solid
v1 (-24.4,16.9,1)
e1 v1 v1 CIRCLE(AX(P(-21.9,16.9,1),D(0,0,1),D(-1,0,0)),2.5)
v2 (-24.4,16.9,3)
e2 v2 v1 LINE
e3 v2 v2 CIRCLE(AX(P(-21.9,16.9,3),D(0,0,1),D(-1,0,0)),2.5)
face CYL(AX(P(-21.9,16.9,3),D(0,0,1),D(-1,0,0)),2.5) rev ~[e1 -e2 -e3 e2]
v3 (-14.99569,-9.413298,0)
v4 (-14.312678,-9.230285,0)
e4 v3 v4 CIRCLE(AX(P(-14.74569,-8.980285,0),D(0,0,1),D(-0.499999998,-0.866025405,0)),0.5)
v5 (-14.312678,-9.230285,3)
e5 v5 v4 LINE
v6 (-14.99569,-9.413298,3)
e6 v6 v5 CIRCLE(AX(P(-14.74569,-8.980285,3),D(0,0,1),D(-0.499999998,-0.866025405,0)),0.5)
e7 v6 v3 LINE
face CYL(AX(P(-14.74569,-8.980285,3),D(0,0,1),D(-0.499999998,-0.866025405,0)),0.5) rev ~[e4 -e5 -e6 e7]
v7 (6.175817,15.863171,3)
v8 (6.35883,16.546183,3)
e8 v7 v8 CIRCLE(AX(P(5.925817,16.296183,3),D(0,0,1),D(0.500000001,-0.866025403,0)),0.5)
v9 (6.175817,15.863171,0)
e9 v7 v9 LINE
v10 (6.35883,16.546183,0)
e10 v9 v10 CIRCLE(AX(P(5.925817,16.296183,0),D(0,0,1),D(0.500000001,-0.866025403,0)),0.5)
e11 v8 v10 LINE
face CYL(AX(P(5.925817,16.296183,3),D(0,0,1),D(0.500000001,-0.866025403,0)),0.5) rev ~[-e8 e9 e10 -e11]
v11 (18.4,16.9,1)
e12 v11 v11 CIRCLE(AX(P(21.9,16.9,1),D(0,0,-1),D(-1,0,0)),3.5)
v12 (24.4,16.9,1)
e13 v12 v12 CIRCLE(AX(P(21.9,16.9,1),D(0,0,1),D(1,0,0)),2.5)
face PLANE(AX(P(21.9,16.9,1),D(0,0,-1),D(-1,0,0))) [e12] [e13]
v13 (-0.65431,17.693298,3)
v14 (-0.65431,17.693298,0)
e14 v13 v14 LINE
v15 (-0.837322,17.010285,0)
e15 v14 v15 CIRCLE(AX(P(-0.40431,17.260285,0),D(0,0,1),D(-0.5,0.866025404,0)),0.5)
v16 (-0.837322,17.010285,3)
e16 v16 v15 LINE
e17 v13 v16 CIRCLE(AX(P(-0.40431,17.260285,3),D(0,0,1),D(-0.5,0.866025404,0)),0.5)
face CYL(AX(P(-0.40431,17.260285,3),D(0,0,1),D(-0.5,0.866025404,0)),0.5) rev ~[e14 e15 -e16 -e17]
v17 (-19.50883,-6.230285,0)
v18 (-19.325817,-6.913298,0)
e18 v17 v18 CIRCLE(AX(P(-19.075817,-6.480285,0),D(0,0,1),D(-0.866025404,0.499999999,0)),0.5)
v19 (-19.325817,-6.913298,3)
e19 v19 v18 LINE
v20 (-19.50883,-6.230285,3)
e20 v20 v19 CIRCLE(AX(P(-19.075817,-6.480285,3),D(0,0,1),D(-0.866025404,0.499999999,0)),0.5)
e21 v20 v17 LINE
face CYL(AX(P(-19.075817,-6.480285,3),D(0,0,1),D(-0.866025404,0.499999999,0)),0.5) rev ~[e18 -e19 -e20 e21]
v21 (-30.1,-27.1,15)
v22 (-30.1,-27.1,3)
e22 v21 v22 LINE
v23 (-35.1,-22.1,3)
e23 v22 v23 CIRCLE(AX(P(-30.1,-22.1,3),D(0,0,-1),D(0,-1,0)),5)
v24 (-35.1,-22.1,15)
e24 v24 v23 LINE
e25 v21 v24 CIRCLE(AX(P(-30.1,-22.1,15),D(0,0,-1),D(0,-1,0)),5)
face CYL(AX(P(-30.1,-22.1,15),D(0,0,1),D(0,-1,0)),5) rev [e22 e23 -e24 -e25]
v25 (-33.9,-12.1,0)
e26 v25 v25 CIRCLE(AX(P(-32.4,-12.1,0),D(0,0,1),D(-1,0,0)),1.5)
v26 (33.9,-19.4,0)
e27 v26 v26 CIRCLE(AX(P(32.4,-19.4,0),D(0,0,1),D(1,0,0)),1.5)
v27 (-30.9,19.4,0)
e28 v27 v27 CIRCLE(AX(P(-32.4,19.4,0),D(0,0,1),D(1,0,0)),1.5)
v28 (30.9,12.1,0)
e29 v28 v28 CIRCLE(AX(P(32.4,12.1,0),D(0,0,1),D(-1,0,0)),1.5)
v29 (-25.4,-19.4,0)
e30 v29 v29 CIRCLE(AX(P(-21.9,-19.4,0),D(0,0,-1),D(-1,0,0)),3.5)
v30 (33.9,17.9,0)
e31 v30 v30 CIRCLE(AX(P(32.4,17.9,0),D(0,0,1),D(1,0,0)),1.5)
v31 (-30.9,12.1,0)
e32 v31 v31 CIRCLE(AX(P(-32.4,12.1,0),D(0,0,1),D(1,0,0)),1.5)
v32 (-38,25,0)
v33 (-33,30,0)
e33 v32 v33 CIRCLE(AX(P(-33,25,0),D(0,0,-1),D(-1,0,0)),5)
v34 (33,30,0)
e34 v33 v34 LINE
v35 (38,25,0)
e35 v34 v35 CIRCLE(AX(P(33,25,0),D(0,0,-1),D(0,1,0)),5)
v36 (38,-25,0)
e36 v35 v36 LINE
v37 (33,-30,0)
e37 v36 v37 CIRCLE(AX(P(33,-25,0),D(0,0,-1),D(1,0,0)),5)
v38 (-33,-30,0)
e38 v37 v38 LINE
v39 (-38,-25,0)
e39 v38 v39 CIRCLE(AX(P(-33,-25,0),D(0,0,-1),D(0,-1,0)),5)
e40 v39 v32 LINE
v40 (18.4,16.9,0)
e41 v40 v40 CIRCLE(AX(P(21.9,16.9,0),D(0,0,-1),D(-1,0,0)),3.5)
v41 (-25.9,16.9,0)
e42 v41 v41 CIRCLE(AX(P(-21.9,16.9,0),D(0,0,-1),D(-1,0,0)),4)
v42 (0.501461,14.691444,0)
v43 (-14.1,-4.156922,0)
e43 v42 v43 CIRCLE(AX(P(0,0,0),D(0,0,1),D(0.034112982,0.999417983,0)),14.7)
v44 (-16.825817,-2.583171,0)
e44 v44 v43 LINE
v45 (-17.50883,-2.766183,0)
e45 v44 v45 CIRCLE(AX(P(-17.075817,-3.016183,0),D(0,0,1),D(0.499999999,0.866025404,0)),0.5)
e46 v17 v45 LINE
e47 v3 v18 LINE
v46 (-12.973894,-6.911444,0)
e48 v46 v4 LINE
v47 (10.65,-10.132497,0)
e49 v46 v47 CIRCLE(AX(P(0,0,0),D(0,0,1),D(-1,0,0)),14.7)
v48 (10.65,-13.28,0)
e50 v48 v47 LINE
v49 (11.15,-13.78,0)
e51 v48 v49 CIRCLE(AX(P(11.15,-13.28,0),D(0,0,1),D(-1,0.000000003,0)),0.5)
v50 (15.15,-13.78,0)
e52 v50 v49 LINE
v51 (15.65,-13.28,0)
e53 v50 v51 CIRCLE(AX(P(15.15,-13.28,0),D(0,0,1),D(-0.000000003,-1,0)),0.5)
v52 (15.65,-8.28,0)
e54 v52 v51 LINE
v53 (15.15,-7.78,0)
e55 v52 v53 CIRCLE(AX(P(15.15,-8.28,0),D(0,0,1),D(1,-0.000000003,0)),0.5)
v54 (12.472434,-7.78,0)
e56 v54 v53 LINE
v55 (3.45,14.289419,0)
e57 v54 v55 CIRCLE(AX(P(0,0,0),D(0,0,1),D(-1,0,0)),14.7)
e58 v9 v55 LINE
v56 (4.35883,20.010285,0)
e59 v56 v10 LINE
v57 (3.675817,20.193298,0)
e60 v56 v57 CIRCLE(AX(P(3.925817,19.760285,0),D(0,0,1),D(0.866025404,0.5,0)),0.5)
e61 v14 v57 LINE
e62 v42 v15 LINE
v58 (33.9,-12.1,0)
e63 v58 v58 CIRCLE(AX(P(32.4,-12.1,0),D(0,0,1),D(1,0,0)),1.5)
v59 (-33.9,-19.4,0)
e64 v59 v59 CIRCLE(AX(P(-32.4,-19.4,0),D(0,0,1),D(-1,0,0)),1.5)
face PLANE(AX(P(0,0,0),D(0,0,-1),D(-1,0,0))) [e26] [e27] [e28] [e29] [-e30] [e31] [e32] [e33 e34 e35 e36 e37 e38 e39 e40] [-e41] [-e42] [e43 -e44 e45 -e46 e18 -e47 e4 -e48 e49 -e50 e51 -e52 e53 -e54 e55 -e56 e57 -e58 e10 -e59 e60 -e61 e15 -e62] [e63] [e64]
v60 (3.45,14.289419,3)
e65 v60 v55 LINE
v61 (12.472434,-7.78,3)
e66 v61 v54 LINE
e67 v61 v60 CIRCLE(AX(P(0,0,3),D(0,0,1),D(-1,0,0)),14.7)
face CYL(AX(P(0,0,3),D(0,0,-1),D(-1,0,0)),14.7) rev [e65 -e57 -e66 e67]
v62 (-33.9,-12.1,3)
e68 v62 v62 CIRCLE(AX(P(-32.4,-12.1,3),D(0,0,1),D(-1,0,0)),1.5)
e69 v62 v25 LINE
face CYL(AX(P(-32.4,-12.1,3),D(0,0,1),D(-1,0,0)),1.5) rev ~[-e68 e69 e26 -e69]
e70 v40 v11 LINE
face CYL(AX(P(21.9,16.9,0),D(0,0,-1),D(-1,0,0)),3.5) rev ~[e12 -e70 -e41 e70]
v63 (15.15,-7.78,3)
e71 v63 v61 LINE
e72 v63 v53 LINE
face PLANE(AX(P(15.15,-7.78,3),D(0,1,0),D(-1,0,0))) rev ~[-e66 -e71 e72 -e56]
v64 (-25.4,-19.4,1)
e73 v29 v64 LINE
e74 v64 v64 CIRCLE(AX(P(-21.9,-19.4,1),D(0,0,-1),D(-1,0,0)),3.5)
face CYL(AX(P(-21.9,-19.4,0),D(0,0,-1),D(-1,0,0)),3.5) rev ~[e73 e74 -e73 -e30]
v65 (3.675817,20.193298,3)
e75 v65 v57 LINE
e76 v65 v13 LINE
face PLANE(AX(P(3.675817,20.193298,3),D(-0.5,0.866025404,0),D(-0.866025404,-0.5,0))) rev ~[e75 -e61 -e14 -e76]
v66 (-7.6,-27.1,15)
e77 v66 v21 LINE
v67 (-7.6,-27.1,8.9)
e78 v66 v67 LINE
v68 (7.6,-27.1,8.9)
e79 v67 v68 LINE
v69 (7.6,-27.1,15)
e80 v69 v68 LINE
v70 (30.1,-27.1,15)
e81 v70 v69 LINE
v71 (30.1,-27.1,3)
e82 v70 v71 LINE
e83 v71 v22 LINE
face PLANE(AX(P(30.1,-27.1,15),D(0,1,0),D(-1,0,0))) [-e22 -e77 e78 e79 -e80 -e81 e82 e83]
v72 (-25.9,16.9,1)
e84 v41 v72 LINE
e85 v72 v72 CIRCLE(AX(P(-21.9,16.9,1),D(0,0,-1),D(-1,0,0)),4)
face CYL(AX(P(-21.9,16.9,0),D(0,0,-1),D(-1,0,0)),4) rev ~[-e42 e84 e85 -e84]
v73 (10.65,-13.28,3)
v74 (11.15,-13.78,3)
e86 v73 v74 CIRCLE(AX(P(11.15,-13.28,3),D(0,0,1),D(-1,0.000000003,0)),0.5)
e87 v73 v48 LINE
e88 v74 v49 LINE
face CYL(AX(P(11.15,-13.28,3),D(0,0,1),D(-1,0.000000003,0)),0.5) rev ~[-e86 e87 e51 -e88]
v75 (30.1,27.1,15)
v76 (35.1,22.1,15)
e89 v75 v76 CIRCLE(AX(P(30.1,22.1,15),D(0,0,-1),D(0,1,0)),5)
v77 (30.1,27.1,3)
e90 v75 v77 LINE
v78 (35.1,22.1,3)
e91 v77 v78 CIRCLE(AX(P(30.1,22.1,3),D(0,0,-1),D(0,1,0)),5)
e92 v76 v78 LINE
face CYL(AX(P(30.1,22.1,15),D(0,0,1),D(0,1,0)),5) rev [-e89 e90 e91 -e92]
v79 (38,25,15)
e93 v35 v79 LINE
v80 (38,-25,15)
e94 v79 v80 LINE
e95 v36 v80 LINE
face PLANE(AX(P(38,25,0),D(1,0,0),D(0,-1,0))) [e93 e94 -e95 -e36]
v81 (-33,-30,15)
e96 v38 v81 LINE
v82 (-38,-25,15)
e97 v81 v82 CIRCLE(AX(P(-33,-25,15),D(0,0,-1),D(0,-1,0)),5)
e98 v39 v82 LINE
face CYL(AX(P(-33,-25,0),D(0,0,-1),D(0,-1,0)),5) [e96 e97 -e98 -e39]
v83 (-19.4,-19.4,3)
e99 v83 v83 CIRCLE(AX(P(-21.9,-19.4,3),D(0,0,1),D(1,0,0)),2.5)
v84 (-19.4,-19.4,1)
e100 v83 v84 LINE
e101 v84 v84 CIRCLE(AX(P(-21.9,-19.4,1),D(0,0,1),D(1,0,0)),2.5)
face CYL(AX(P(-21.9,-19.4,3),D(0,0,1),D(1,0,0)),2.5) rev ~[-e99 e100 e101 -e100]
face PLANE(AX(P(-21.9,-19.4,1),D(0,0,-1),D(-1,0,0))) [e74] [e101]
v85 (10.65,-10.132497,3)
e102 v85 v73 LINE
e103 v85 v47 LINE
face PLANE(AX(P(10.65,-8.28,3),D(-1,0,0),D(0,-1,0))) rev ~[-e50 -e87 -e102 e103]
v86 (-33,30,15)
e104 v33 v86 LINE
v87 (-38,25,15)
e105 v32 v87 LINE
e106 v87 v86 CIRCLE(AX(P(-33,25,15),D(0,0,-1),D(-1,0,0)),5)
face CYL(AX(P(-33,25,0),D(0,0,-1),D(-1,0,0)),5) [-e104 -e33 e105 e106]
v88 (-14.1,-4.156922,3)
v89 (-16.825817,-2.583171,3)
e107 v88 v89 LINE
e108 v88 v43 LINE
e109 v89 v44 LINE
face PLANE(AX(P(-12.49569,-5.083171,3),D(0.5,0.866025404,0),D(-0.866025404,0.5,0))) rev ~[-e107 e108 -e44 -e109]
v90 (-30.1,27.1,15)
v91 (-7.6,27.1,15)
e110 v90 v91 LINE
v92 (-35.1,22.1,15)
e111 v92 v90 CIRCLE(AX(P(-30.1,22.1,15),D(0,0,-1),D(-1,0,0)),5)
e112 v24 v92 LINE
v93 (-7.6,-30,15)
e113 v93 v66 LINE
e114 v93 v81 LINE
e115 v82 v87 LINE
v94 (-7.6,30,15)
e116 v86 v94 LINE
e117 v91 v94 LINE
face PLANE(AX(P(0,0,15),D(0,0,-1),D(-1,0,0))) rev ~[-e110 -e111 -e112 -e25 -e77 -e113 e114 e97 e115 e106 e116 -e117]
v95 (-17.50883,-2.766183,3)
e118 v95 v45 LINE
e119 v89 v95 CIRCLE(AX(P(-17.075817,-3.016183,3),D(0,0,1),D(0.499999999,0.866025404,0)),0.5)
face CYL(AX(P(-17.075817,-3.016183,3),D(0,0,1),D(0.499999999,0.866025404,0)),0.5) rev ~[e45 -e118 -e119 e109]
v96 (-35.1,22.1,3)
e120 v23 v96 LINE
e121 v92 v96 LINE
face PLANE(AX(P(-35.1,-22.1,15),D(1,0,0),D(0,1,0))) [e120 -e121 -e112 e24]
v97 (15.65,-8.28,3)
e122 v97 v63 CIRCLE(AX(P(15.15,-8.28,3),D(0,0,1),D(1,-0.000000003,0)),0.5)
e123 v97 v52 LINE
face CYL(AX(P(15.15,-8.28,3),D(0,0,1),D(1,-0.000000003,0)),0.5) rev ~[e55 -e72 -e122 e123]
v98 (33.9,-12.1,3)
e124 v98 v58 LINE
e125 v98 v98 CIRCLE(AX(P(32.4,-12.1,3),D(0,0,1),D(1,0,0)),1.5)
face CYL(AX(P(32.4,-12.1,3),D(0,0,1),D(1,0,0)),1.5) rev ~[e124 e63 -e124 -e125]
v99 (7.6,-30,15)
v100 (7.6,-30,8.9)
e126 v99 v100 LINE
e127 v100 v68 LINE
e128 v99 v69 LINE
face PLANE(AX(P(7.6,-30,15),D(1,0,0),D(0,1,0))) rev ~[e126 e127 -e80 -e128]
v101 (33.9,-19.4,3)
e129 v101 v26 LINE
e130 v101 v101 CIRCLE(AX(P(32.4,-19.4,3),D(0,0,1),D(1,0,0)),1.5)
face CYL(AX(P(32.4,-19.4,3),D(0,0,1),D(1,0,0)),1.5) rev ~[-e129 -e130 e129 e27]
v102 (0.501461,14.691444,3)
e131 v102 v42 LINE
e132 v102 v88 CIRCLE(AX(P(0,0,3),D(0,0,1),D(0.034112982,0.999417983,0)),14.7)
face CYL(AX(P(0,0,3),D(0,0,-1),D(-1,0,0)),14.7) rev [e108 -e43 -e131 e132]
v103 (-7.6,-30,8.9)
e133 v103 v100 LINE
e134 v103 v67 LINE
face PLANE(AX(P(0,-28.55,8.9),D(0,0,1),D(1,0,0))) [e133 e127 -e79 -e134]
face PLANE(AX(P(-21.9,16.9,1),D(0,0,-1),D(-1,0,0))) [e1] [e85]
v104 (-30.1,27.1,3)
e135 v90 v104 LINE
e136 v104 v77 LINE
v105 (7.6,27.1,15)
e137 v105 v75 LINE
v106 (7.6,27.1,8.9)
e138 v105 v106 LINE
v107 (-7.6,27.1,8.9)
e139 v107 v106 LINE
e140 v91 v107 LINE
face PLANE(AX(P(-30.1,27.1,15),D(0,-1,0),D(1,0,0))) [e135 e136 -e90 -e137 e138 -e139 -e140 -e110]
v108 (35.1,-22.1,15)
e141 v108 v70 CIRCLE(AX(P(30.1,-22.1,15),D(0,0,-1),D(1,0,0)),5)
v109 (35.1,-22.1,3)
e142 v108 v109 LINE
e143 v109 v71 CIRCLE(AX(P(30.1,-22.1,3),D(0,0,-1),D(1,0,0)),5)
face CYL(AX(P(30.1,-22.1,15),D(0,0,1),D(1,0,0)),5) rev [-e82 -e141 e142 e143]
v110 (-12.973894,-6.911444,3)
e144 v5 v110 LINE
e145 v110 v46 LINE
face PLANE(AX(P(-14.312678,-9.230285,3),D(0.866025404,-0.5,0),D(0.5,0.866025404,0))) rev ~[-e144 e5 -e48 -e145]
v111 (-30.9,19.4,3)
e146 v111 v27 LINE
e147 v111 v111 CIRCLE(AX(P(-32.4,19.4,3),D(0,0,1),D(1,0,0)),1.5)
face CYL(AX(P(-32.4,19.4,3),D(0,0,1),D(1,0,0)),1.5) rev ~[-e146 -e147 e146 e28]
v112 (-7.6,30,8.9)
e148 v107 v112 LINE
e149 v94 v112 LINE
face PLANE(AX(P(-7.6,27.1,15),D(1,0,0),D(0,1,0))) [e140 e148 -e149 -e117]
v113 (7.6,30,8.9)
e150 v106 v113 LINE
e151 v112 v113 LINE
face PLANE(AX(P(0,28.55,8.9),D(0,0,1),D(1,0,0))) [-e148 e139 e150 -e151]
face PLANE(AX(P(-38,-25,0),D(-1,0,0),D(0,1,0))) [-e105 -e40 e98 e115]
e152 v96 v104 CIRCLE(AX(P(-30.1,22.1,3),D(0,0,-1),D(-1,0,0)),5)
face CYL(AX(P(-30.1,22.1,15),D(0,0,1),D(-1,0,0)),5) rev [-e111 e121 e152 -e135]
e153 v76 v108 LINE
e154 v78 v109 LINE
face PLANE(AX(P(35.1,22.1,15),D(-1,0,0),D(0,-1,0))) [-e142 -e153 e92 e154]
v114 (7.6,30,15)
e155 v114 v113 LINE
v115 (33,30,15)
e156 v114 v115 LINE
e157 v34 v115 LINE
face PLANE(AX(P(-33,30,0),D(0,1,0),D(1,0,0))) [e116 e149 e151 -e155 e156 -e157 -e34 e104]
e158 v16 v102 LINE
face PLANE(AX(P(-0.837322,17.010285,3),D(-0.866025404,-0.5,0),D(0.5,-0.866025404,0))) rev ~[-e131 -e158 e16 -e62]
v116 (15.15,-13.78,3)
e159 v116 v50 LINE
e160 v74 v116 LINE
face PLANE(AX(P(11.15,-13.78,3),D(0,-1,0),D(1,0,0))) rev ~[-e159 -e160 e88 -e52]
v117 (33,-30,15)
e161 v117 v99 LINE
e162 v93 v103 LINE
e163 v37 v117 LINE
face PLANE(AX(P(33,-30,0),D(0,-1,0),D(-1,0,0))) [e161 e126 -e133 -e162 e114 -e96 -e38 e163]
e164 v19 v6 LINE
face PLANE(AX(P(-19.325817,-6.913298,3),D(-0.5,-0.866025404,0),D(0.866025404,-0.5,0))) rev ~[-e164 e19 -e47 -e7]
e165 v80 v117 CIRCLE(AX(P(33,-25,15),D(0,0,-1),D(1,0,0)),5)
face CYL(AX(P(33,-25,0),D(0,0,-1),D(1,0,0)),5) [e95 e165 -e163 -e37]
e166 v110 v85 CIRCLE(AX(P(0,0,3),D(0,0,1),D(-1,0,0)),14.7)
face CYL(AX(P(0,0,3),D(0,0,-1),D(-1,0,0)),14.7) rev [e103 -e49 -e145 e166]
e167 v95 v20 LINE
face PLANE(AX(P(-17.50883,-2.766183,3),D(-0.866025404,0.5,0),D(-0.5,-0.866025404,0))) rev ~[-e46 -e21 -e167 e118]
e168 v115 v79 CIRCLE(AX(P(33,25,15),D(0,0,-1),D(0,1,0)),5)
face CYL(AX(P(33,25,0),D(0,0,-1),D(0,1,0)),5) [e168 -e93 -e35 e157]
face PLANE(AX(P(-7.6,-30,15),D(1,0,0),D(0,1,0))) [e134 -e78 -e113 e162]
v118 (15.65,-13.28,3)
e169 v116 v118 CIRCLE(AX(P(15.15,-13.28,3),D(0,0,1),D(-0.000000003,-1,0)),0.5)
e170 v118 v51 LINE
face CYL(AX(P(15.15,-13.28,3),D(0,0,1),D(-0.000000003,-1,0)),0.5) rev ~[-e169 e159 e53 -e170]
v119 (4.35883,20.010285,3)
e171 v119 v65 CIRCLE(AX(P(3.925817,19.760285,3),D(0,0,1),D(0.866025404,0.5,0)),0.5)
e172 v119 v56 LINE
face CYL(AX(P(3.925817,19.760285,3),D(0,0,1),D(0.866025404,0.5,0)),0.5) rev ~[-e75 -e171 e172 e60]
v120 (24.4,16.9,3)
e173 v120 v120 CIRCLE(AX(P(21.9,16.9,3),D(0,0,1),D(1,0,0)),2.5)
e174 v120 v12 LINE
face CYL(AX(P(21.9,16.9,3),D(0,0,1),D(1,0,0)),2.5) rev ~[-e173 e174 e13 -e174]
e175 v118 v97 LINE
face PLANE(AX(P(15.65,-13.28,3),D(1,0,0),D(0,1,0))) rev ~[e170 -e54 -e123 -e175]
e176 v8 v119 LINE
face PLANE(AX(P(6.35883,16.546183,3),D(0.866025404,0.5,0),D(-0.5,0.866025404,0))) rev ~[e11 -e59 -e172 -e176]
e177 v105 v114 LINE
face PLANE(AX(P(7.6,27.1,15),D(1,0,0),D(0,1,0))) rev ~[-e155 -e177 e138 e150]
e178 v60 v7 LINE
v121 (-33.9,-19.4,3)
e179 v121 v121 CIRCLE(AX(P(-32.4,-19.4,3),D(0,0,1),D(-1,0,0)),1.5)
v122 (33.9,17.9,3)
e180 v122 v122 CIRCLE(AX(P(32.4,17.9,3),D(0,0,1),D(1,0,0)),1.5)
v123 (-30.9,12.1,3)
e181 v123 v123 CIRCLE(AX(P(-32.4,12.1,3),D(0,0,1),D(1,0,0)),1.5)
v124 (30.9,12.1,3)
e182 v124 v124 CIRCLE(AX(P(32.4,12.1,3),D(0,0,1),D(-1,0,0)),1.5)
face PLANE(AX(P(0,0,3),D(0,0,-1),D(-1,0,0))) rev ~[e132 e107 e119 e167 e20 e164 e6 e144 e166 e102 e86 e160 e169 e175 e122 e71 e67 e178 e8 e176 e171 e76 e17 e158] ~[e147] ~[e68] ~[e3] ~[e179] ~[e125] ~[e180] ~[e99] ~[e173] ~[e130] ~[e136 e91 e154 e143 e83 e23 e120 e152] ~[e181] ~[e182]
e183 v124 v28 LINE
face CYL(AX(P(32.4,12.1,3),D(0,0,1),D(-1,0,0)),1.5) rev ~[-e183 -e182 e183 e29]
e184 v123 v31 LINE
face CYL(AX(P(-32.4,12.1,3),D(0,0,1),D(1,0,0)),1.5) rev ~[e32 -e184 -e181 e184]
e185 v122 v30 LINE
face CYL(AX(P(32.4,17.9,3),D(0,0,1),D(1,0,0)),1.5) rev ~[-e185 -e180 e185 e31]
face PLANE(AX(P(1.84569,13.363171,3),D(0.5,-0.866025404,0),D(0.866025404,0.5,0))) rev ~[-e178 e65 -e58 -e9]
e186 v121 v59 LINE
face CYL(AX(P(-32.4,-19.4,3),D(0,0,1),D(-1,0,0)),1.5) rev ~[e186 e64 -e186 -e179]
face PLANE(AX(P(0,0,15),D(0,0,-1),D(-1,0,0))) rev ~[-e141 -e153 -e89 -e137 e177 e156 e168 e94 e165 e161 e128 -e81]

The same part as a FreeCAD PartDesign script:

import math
import FreeCAD as App
import Part
import Sketcher
Q = App.Units.Quantity

doc = App.newDocument("Part")
body = doc.addObject("PartDesign::Body", "Body")

# Sketch on XY plane
sketch1 = doc.addObject("Sketcher::SketchObject", "Sketch")
body.addObject(sketch1)
sketch1.AttachmentSupport = (doc.XY_Plane, [""])
sketch1.MapMode = "FlatFace"
sketch1.addGeometry(Part.LineSegment(App.Vector(33, 30, 0), App.Vector(-33, 30, 0)), False)
sketch1.addGeometry(Part.ArcOfCircle(Part.Circle(App.Vector(-33, 25, 0), App.Vector(0, 0, 1), 5), math.radians(90), math.radians(180)), False)
sketch1.addGeometry(Part.LineSegment(App.Vector(-38, 25, 0), App.Vector(-38, -25, 0)), False)
sketch1.addGeometry(Part.ArcOfCircle(Part.Circle(App.Vector(-33, -25, 0), App.Vector(0, 0, 1), 5), math.radians(180), math.radians(270)), False)
sketch1.addGeometry(Part.LineSegment(App.Vector(-33, -30, 0), App.Vector(33, -30, 0)), False)
sketch1.addGeometry(Part.ArcOfCircle(Part.Circle(App.Vector(33, -25, 0), App.Vector(0, 0, 1), 5), math.radians(-90), math.radians(0)), False)
sketch1.addGeometry(Part.LineSegment(App.Vector(38, -25, 0), App.Vector(38, 25, 0)), False)
sketch1.addGeometry(Part.ArcOfCircle(Part.Circle(App.Vector(33, 25, 0), App.Vector(0, 0, 1), 5), math.radians(0), math.radians(90)), False)
sketch1.addConstraint(Sketcher.Constraint("Tangent", 0, 2, 1, 1))
sketch1.addConstraint(Sketcher.Constraint("Tangent", 1, 2, 2, 1))
sketch1.addConstraint(Sketcher.Constraint("Tangent", 2, 2, 3, 1))
sketch1.addConstraint(Sketcher.Constraint("Tangent", 3, 2, 4, 1))
sketch1.addConstraint(Sketcher.Constraint("Tangent", 4, 2, 5, 1))
sketch1.addConstraint(Sketcher.Constraint("Tangent", 5, 2, 6, 1))
sketch1.addConstraint(Sketcher.Constraint("Tangent", 6, 2, 7, 1))
sketch1.addConstraint(Sketcher.Constraint("Tangent", 7, 2, 0, 1))
sketch1.addConstraint(Sketcher.Constraint("Horizontal", 0))
sketch1.addConstraint(Sketcher.Constraint("Vertical", 2))
sketch1.addConstraint(Sketcher.Constraint("Horizontal", 4))
sketch1.addConstraint(Sketcher.Constraint("Vertical", 6))
sketch1.addConstraint(Sketcher.Constraint("Equal", 1, 3))
sketch1.addConstraint(Sketcher.Constraint("Equal", 3, 5))
sketch1.addConstraint(Sketcher.Constraint("Equal", 5, 7))
sketch1.addConstraint(Sketcher.Constraint("Symmetric", 1, 3, 5, 3, -1, 1))
sketch1.addConstraint(Sketcher.Constraint("Radius", 1, 5.0))
sketch1.addConstraint(Sketcher.Constraint("DistanceX", 0, 2, 0, 1, 66.0))
sketch1.addConstraint(Sketcher.Constraint("DistanceY", 2, 2, 2, 1, 50.0))
pad1 = doc.addObject("PartDesign::Pad", "Pad")
body.addObject(pad1)
pad1.Profile = sketch1
pad1.Length = 15

# Sketch on XY plane
sketch2 = doc.addObject("Sketcher::SketchObject", "Sketch001")
body.addObject(sketch2)
sketch2.AttachmentSupport = (doc.XY_Plane, [""])
sketch2.MapMode = "FlatFace"
sketch2.AttachmentOffset = App.Placement(App.Vector(0, 0, 15), App.Rotation())
sketch2.addGeometry(Part.LineSegment(App.Vector(30, 27, 0), App.Vector(-30, 27, 0)), False)
sketch2.addGeometry(Part.ArcOfCircle(Part.Circle(App.Vector(-30, 22, 0), App.Vector(0, 0, 1), 5), math.radians(90), math.radians(180)), False)
sketch2.addGeometry(Part.LineSegment(App.Vector(-35, 22, 0), App.Vector(-35, -22, 0)), False)
sketch2.addGeometry(Part.ArcOfCircle(Part.Circle(App.Vector(-30, -22, 0), App.Vector(0, 0, 1), 5), math.radians(180), math.radians(270)), False)
sketch2.addGeometry(Part.LineSegment(App.Vector(-30, -27, 0), App.Vector(30, -27, 0)), False)
sketch2.addGeometry(Part.ArcOfCircle(Part.Circle(App.Vector(30, -22, 0), App.Vector(0, 0, 1), 5), math.radians(-90), math.radians(0)), False)
sketch2.addGeometry(Part.LineSegment(App.Vector(35, -22, 0), App.Vector(35, 22, 0)), False)
sketch2.addGeometry(Part.ArcOfCircle(Part.Circle(App.Vector(30, 22, 0), App.Vector(0, 0, 1), 5), math.radians(0), math.radians(90)), False)
sketch2.addConstraint(Sketcher.Constraint("Tangent", 0, 2, 1, 1))
sketch2.addConstraint(Sketcher.Constraint("Tangent", 1, 2, 2, 1))
sketch2.addConstraint(Sketcher.Constraint("Tangent", 2, 2, 3, 1))
sketch2.addConstraint(Sketcher.Constraint("Tangent", 3, 2, 4, 1))
sketch2.addConstraint(Sketcher.Constraint("Tangent", 4, 2, 5, 1))
sketch2.addConstraint(Sketcher.Constraint("Tangent", 5, 2, 6, 1))
sketch2.addConstraint(Sketcher.Constraint("Tangent", 6, 2, 7, 1))
sketch2.addConstraint(Sketcher.Constraint("Tangent", 7, 2, 0, 1))
sketch2.addConstraint(Sketcher.Constraint("Horizontal", 0))
sketch2.addConstraint(Sketcher.Constraint("Vertical", 2))
sketch2.addConstraint(Sketcher.Constraint("Horizontal", 4))
sketch2.addConstraint(Sketcher.Constraint("Vertical", 6))
sketch2.addConstraint(Sketcher.Constraint("Equal", 1, 3))
sketch2.addConstraint(Sketcher.Constraint("Equal", 3, 5))
sketch2.addConstraint(Sketcher.Constraint("Equal", 5, 7))
sketch2.addConstraint(Sketcher.Constraint("Symmetric", 1, 3, 5, 3, -1, 1))
sketch2.addConstraint(Sketcher.Constraint("Radius", 1, 5.0))
sketch2.addConstraint(Sketcher.Constraint("DistanceX", 0, 2, 0, 1, 60.2))
sketch2.addConstraint(Sketcher.Constraint("DistanceY", 2, 2, 2, 1, 44.2))
pocket1 = doc.addObject("PartDesign::Pocket", "Pocket")
body.addObject(pocket1)
pocket1.Profile = sketch2
pocket1.Length = 12

# Sketch on XZ plane
sketch3 = doc.addObject("Sketcher::SketchObject", "Sketch002")
body.addObject(sketch3)
sketch3.AttachmentSupport = (doc.XZ_Plane, [""])
sketch3.MapMode = "FlatFace"
sketch3.addGeometry(Part.LineSegment(App.Vector(0, 3, 0), App.Vector(14.7, 3, 0)), False)
sketch3.addGeometry(Part.LineSegment(App.Vector(14.7, 3, 0), App.Vector(14.7, 0, 0)), False)
sketch3.addGeometry(Part.LineSegment(App.Vector(14.7, 0, 0), App.Vector(0, 0, 0)), False)
sketch3.addGeometry(Part.LineSegment(App.Vector(0, 0, 0), App.Vector(0, 3, 0)), False)
sketch3.addConstraint(Sketcher.Constraint("Coincident", 0, 2, 1, 1))
sketch3.addConstraint(Sketcher.Constraint("Coincident", 1, 2, 2, 1))
sketch3.addConstraint(Sketcher.Constraint("Coincident", 2, 2, 3, 1))
sketch3.addConstraint(Sketcher.Constraint("Coincident", 3, 2, 0, 1))
sketch3.addConstraint(Sketcher.Constraint("Horizontal", 0))
sketch3.addConstraint(Sketcher.Constraint("Vertical", 1))
sketch3.addConstraint(Sketcher.Constraint("Horizontal", 2))
sketch3.addConstraint(Sketcher.Constraint("Vertical", 3))
sketch3.addConstraint(Sketcher.Constraint("Coincident", 2, 2, -1, 1))
sketch3.addConstraint(Sketcher.Constraint("DistanceY", 1, 2, 1, 1, 3.0))
sketch3.addConstraint(Sketcher.Constraint("DistanceX", 0, 1, 0, 2, 14.7))
groove = doc.addObject("PartDesign::Groove", "Groove")
body.addObject(groove)
groove.Profile = sketch3
groove.ReferenceAxis = (sketch3, ["V_Axis"])
groove.Angle = 360

# Sketch on XY plane
sketch4 = doc.addObject("Sketcher::SketchObject", "Sketch003")
body.addObject(sketch4)
sketch4.AttachmentSupport = (doc.XY_Plane, [""])
sketch4.MapMode = "FlatFace"
sketch4.AttachmentOffset = App.Placement(App.Vector(0, 0, 15), App.Rotation())
sketch4.addGeometry(Part.LineSegment(App.Vector(-7.6, 30, 0), App.Vector(-7.6, 27.1, 0)), False)
sketch4.addGeometry(Part.LineSegment(App.Vector(-7.6, 27.1, 0), App.Vector(7.6, 27.1, 0)), False)
sketch4.addGeometry(Part.LineSegment(App.Vector(7.6, 27.1, 0), App.Vector(7.6, 30, 0)), False)
sketch4.addGeometry(Part.LineSegment(App.Vector(7.6, 30, 0), App.Vector(-7.6, 30, 0)), False)
sketch4.addGeometry(Part.LineSegment(App.Vector(-7.6, -27.1, 0), App.Vector(-7.6, -30, 0)), False)
sketch4.addGeometry(Part.LineSegment(App.Vector(-7.6, -30, 0), App.Vector(7.6, -30, 0)), False)
sketch4.addGeometry(Part.LineSegment(App.Vector(7.6, -30, 0), App.Vector(7.6, -27.1, 0)), False)
sketch4.addGeometry(Part.LineSegment(App.Vector(7.6, -27.1, 0), App.Vector(-7.6, -27.1, 0)), False)
sketch4.addConstraint(Sketcher.Constraint("Coincident", 0, 2, 1, 1))
sketch4.addConstraint(Sketcher.Constraint("Coincident", 1, 2, 2, 1))
sketch4.addConstraint(Sketcher.Constraint("Coincident", 2, 2, 3, 1))
sketch4.addConstraint(Sketcher.Constraint("Coincident", 3, 2, 0, 1))
sketch4.addConstraint(Sketcher.Constraint("Coincident", 4, 2, 5, 1))
sketch4.addConstraint(Sketcher.Constraint("Coincident", 5, 2, 6, 1))
sketch4.addConstraint(Sketcher.Constraint("Coincident", 6, 2, 7, 1))
sketch4.addConstraint(Sketcher.Constraint("Coincident", 7, 2, 4, 1))
sketch4.addConstraint(Sketcher.Constraint("Vertical", 0))
sketch4.addConstraint(Sketcher.Constraint("Horizontal", 1))
sketch4.addConstraint(Sketcher.Constraint("Vertical", 2))
sketch4.addConstraint(Sketcher.Constraint("Horizontal", 3))
sketch4.addConstraint(Sketcher.Constraint("Vertical", 4))
sketch4.addConstraint(Sketcher.Constraint("Horizontal", 5))
sketch4.addConstraint(Sketcher.Constraint("Vertical", 6))
sketch4.addConstraint(Sketcher.Constraint("Horizontal", 7))
sketch4.addConstraint(Sketcher.Constraint("Symmetric", 2, 2, 4, 2, -1, 1))
sketch4.addConstraint(Sketcher.Constraint("Symmetric", 0, 2, 6, 2, -1, 1))
sketch4.addConstraint(Sketcher.Constraint("Vertical", 3, 2, 4, 2))
sketch4.addConstraint(Sketcher.Constraint("DistanceX", 1, 1, 1, 2, 15.2))
sketch4.addConstraint(Sketcher.Constraint("DistanceY", 0, 2, 0, 1, 2.9))
sketch4.addConstraint(Sketcher.Constraint("DistanceY", -1, 1, 2, 2, 30.0))
pocket2 = doc.addObject("PartDesign::Pocket", "Pocket001")
body.addObject(pocket2)
pocket2.Profile = sketch4
pocket2.Length = 6.1

# Sketch on XY plane
sketch5 = doc.addObject("Sketcher::SketchObject", "Sketch004")
body.addObject(sketch5)
sketch5.AttachmentSupport = (doc.XY_Plane, [""])
sketch5.MapMode = "FlatFace"
sketch5.AttachmentOffset = App.Placement(App.Vector(0, 0, 3), App.Rotation())
sketch5.addGeometry(Part.ArcOfCircle(Part.Circle(App.Vector(-0.4, 17.26, 0), App.Vector(0, 0, 1), 0.5), math.radians(120), math.radians(210)), False)
sketch5.addGeometry(Part.LineSegment(App.Vector(-0.84, 17.01, 0), App.Vector(1.16, 13.55, 0)), False)
sketch5.addGeometry(Part.ArcOfCircle(Part.Circle(App.Vector(1.6, 13.8, 0), App.Vector(0, 0, 1), 0.5), math.radians(-60), math.radians(210)), False)
sketch5.addGeometry(Part.LineSegment(App.Vector(1.85, 13.36, 0), App.Vector(6.18, 15.86, 0)), False)
sketch5.addGeometry(Part.ArcOfCircle(Part.Circle(App.Vector(5.93, 16.3, 0), App.Vector(0, 0, 1), 0.5), math.radians(-60), math.radians(30)), False)
sketch5.addGeometry(Part.LineSegment(App.Vector(6.36, 16.55, 0), App.Vector(4.36, 20.01, 0)), False)
sketch5.addGeometry(Part.ArcOfCircle(Part.Circle(App.Vector(3.93, 19.76, 0), App.Vector(0, 0, 1), 0.5), math.radians(30), math.radians(120)), False)
sketch5.addGeometry(Part.LineSegment(App.Vector(3.68, 20.19, 0), App.Vector(-0.65, 17.69, 0)), False)
sketch5.addGeometry(Part.LineSegment(App.Vector(-14.31, -9.23, 0), App.Vector(-12.31, -5.77, 0)), False)
sketch5.addGeometry(Part.ArcOfCircle(Part.Circle(App.Vector(-12.75, -5.52, 0), App.Vector(0, 0, 1), 0.5), math.radians(60), math.radians(330)), False)
sketch5.addGeometry(Part.LineSegment(App.Vector(-12.5, -5.08, 0), App.Vector(-16.83, -2.58, 0)), False)
sketch5.addGeometry(Part.ArcOfCircle(Part.Circle(App.Vector(-17.08, -3.02, 0), App.Vector(0, 0, 1), 0.5), math.radians(60), math.radians(150)), False)
sketch5.addGeometry(Part.LineSegment(App.Vector(-17.51, -2.77, 0), App.Vector(-19.51, -6.23, 0)), False)
sketch5.addGeometry(Part.ArcOfCircle(Part.Circle(App.Vector(-19.08, -6.48, 0), App.Vector(0, 0, 1), 0.5), math.radians(150), math.radians(240)), False)
sketch5.addGeometry(Part.LineSegment(App.Vector(-19.33, -6.91, 0), App.Vector(-15, -9.41, 0)), False)
sketch5.addGeometry(Part.ArcOfCircle(Part.Circle(App.Vector(-14.75, -8.98, 0), App.Vector(0, 0, 1), 0.5), math.radians(-120), math.radians(-30)), False)
sketch5.addGeometry(Part.LineSegment(App.Vector(15.15, -7.78, 0), App.Vector(11.15, -7.78, 0)), False)
sketch5.addGeometry(Part.ArcOfCircle(Part.Circle(App.Vector(11.15, -8.28, 0), App.Vector(0, 0, 1), 0.5), math.radians(90), math.radians(180)), False)
sketch5.addGeometry(Part.LineSegment(App.Vector(10.65, -8.28, 0), App.Vector(10.65, -13.28, 0)), False)
sketch5.addGeometry(Part.ArcOfCircle(Part.Circle(App.Vector(11.15, -13.28, 0), App.Vector(0, 0, 1), 0.5), math.radians(180), math.radians(270)), False)
sketch5.addGeometry(Part.LineSegment(App.Vector(11.15, -13.78, 0), App.Vector(15.15, -13.78, 0)), False)
sketch5.addGeometry(Part.ArcOfCircle(Part.Circle(App.Vector(15.15, -13.28, 0), App.Vector(0, 0, 1), 0.5), math.radians(-90), math.radians(0)), False)
sketch5.addGeometry(Part.LineSegment(App.Vector(15.65, -13.28, 0), App.Vector(15.65, -8.28, 0)), False)
sketch5.addGeometry(Part.ArcOfCircle(Part.Circle(App.Vector(15.15, -8.28, 0), App.Vector(0, 0, 1), 0.5), math.radians(0), math.radians(90)), False)
sketch5.addGeometry(Part.Circle(App.Vector(-32.4, 19.4, 0), App.Vector(0, 0, 1), 1.5), False)
sketch5.addGeometry(Part.Circle(App.Vector(32.4, 17.9, 0), App.Vector(0, 0, 1), 1.5), False)
sketch5.addGeometry(Part.Circle(App.Vector(-32.4, -19.4, 0), App.Vector(0, 0, 1), 1.5), False)
sketch5.addGeometry(Part.Circle(App.Vector(32.4, -19.4, 0), App.Vector(0, 0, 1), 1.5), False)
sketch5.addGeometry(Part.Circle(App.Vector(-32.4, 12.1, 0), App.Vector(0, 0, 1), 1.5), False)
sketch5.addGeometry(Part.Circle(App.Vector(32.4, 12.1, 0), App.Vector(0, 0, 1), 1.5), False)
sketch5.addGeometry(Part.Circle(App.Vector(32.4, -12.1, 0), App.Vector(0, 0, 1), 1.5), False)
sketch5.addGeometry(Part.Circle(App.Vector(-32.4, -12.1, 0), App.Vector(0, 0, 1), 1.5), False)
sketch5.addConstraint(Sketcher.Constraint("Tangent", 0, 2, 1, 1))
sketch5.addConstraint(Sketcher.Constraint("Tangent", 1, 2, 2, 2))
sketch5.addConstraint(Sketcher.Constraint("Tangent", 2, 1, 3, 1))
sketch5.addConstraint(Sketcher.Constraint("Tangent", 3, 2, 4, 1))
sketch5.addConstraint(Sketcher.Constraint("Tangent", 4, 2, 5, 1))
sketch5.addConstraint(Sketcher.Constraint("Tangent", 5, 2, 6, 1))
sketch5.addConstraint(Sketcher.Constraint("Tangent", 6, 2, 7, 1))
sketch5.addConstraint(Sketcher.Constraint("Tangent", 7, 2, 0, 1))
sketch5.addConstraint(Sketcher.Constraint("Tangent", 8, 2, 9, 2))
sketch5.addConstraint(Sketcher.Constraint("Tangent", 9, 1, 10, 1))
sketch5.addConstraint(Sketcher.Constraint("Tangent", 10, 2, 11, 1))
sketch5.addConstraint(Sketcher.Constraint("Tangent", 11, 2, 12, 1))
sketch5.addConstraint(Sketcher.Constraint("Tangent", 12, 2, 13, 1))
sketch5.addConstraint(Sketcher.Constraint("Tangent", 13, 2, 14, 1))
sketch5.addConstraint(Sketcher.Constraint("Tangent", 14, 2, 15, 1))
sketch5.addConstraint(Sketcher.Constraint("Tangent", 15, 2, 8, 1))
sketch5.addConstraint(Sketcher.Constraint("Tangent", 16, 2, 17, 1))
sketch5.addConstraint(Sketcher.Constraint("Tangent", 17, 2, 18, 1))
sketch5.addConstraint(Sketcher.Constraint("Tangent", 18, 2, 19, 1))
sketch5.addConstraint(Sketcher.Constraint("Tangent", 19, 2, 20, 1))
sketch5.addConstraint(Sketcher.Constraint("Tangent", 20, 2, 21, 1))
sketch5.addConstraint(Sketcher.Constraint("Tangent", 21, 2, 22, 1))
sketch5.addConstraint(Sketcher.Constraint("Tangent", 22, 2, 23, 1))
sketch5.addConstraint(Sketcher.Constraint("Tangent", 23, 2, 16, 1))
sketch5.addConstraint(Sketcher.Constraint("Horizontal", 16))
sketch5.addConstraint(Sketcher.Constraint("Vertical", 18))
sketch5.addConstraint(Sketcher.Constraint("Horizontal", 20))
sketch5.addConstraint(Sketcher.Constraint("Vertical", 22))
sketch5.addConstraint(Sketcher.Constraint("Equal", 0, 2))
sketch5.addConstraint(Sketcher.Constraint("Equal", 2, 4))
sketch5.addConstraint(Sketcher.Constraint("Equal", 4, 6))
sketch5.addConstraint(Sketcher.Constraint("Equal", 6, 9))
sketch5.addConstraint(Sketcher.Constraint("Equal", 9, 11))
sketch5.addConstraint(Sketcher.Constraint("Equal", 11, 13))
sketch5.addConstraint(Sketcher.Constraint("Equal", 13, 15))
sketch5.addConstraint(Sketcher.Constraint("Equal", 15, 17))
sketch5.addConstraint(Sketcher.Constraint("Equal", 17, 19))
sketch5.addConstraint(Sketcher.Constraint("Equal", 19, 21))
sketch5.addConstraint(Sketcher.Constraint("Equal", 21, 23))
sketch5.addConstraint(Sketcher.Constraint("Equal", 24, 25))
sketch5.addConstraint(Sketcher.Constraint("Equal", 25, 26))
sketch5.addConstraint(Sketcher.Constraint("Equal", 26, 27))
sketch5.addConstraint(Sketcher.Constraint("Equal", 27, 28))
sketch5.addConstraint(Sketcher.Constraint("Equal", 28, 29))
sketch5.addConstraint(Sketcher.Constraint("Equal", 29, 30))
sketch5.addConstraint(Sketcher.Constraint("Equal", 30, 31))
sketch5.addConstraint(Sketcher.Constraint("Symmetric", 24, 3, 27, 3, -1, 1))
sketch5.addConstraint(Sketcher.Constraint("Symmetric", 28, 3, 30, 3, -1, 1))
sketch5.addConstraint(Sketcher.Constraint("Symmetric", 29, 3, 31, 3, -1, 1))
sketch5.addConstraint(Sketcher.Constraint("Symmetric", 26, 3, 27, 3, -2))
sketch5.addConstraint(Sketcher.Constraint("Symmetric", 28, 3, 29, 3, -2))
sketch5.addConstraint(Sketcher.Constraint("Perpendicular", 1, 3))
sketch5.addConstraint(Sketcher.Constraint("Perpendicular", 3, 5))
sketch5.addConstraint(Sketcher.Constraint("Perpendicular", 5, 7))
sketch5.addConstraint(Sketcher.Constraint("Perpendicular", 8, 10))
sketch5.addConstraint(Sketcher.Constraint("Perpendicular", 10, 12))
sketch5.addConstraint(Sketcher.Constraint("Perpendicular", 12, 14))
sketch5.addConstraint(Sketcher.Constraint("Vertical", 25, 3, 27, 3))
sketch5.addConstraint(Sketcher.Constraint("Vertical", 26, 3, 28, 3))
sketch5.addConstraint(Sketcher.Constraint("Equal", 5, 8))
sketch5.addConstraint(Sketcher.Constraint("Equal", 7, 10))
sketch5.addConstraint(Sketcher.Constraint("Diameter", 24, 3.0))
sketch5.addConstraint(Sketcher.Constraint("Radius", 0, 0.5))
sketch5.addConstraint(Sketcher.Constraint("DistanceX", 16, 2, 16, 1, 4.0))
sketch5.addConstraint(Sketcher.Constraint("DistanceY", 18, 2, 18, 1, 5.0))
sketch5.addConstraint(Sketcher.Constraint("Angle", 1, Q("-60 deg")))
sketch5.addConstraint(Sketcher.Constraint("Angle", 8, Q("60 deg")))
sketch5.addConstraint(Sketcher.Constraint("Distance", 1, 4.0))
sketch5.addConstraint(Sketcher.Constraint("Distance", 3, 5.0))
sketch5.addConstraint(Sketcher.Constraint("DistanceX", 24, 3, -1, 1, 32.4))
sketch5.addConstraint(Sketcher.Constraint("DistanceY", -1, 1, 24, 3, 19.4))
sketch5.addConstraint(Sketcher.Constraint("DistanceY", -1, 1, 25, 3, 17.9))
sketch5.addConstraint(Sketcher.Constraint("DistanceY", -1, 1, 28, 3, 12.1))
sketch5.addConstraint(Sketcher.Constraint("DistanceX", -1, 1, 17, 3, 11.15))
sketch5.addConstraint(Sketcher.Constraint("DistanceY", 17, 3, -1, 1, 8.28))
sketch5.addConstraint(Sketcher.Constraint("DistanceX", 0, 3, -1, 1, 0.40431))
sketch5.addConstraint(Sketcher.Constraint("DistanceX", 9, 3, -1, 1, 12.74569))
sketch5.addConstraint(Sketcher.Constraint("DistanceY", -1, 1, 2, 1, 13.363171))
sketch5.addConstraint(Sketcher.Constraint("DistanceY", 9, 1, -1, 1, 5.083171))
pocket3 = doc.addObject("PartDesign::Pocket", "Pocket002")
body.addObject(pocket3)
pocket3.Profile = sketch5
pocket3.Type = "ThroughAll"

# Sketch on XY plane
sketch6 = doc.addObject("Sketcher::SketchObject", "Sketch005")
body.addObject(sketch6)
sketch6.AttachmentSupport = (doc.XY_Plane, [""])
sketch6.MapMode = "FlatFace"
sketch6.AttachmentOffset = App.Placement(App.Vector(0, 0, 3), App.Rotation())
sketch6.addGeometry(Part.Circle(App.Vector(-21.9, -19.4, 0), App.Vector(0, 0, 1), 2.5), False)
sketch6.addGeometry(Part.Circle(App.Vector(21.9, 16.9, 0), App.Vector(0, 0, 1), 2.5), False)
sketch6.addGeometry(Part.Circle(App.Vector(-21.9, 16.9, 0), App.Vector(0, 0, 1), 2.5), False)
sketch6.addConstraint(Sketcher.Constraint("Equal", 0, 1))
sketch6.addConstraint(Sketcher.Constraint("Equal", 1, 2))
sketch6.addConstraint(Sketcher.Constraint("Symmetric", 1, 3, 2, 3, -2))
sketch6.addConstraint(Sketcher.Constraint("Vertical", 0, 3, 2, 3))
sketch6.addConstraint(Sketcher.Constraint("Diameter", 0, 5.0))
sketch6.addConstraint(Sketcher.Constraint("DistanceX", 0, 3, -1, 1, 21.9))
sketch6.addConstraint(Sketcher.Constraint("DistanceY", 0, 3, -1, 1, 19.4))
sketch6.addConstraint(Sketcher.Constraint("DistanceY", -1, 1, 1, 3, 16.9))
pocket4 = doc.addObject("PartDesign::Pocket", "Pocket003")
body.addObject(pocket4)
pocket4.Profile = sketch6
pocket4.Type = "ThroughAll"

# Sketch on XY plane
sketch7 = doc.addObject("Sketcher::SketchObject", "Sketch006")
body.addObject(sketch7)
sketch7.AttachmentSupport = (doc.XY_Plane, [""])
sketch7.MapMode = "FlatFace"
sketch7.addGeometry(Part.Circle(App.Vector(21.9, 16.9, 0), App.Vector(0, 0, 1), 3.5), False)
sketch7.addGeometry(Part.Circle(App.Vector(-21.9, -19.4, 0), App.Vector(0, 0, 1), 3.5), False)
sketch7.addGeometry(Part.Circle(App.Vector(-21.9, 16.9, 0), App.Vector(0, 0, 1), 4), False)
sketch7.addConstraint(Sketcher.Constraint("Equal", 0, 1))
sketch7.addConstraint(Sketcher.Constraint("Symmetric", 0, 3, 2, 3, -2))
sketch7.addConstraint(Sketcher.Constraint("Vertical", 1, 3, 2, 3))
sketch7.addConstraint(Sketcher.Constraint("Diameter", 0, 7.0))
sketch7.addConstraint(Sketcher.Constraint("Diameter", 2, 8.0))
sketch7.addConstraint(Sketcher.Constraint("DistanceX", -1, 1, 0, 3, 21.9))
sketch7.addConstraint(Sketcher.Constraint("DistanceY", -1, 1, 0, 3, 16.9))
sketch7.addConstraint(Sketcher.Constraint("DistanceY", 1, 3, -1, 1, 19.4))
pocket5 = doc.addObject("PartDesign::Pocket", "Pocket004")
body.addObject(pocket5)
pocket5.Profile = sketch7
pocket5.Length = 1
pocket5.Reversed = True

doc.recompute()
